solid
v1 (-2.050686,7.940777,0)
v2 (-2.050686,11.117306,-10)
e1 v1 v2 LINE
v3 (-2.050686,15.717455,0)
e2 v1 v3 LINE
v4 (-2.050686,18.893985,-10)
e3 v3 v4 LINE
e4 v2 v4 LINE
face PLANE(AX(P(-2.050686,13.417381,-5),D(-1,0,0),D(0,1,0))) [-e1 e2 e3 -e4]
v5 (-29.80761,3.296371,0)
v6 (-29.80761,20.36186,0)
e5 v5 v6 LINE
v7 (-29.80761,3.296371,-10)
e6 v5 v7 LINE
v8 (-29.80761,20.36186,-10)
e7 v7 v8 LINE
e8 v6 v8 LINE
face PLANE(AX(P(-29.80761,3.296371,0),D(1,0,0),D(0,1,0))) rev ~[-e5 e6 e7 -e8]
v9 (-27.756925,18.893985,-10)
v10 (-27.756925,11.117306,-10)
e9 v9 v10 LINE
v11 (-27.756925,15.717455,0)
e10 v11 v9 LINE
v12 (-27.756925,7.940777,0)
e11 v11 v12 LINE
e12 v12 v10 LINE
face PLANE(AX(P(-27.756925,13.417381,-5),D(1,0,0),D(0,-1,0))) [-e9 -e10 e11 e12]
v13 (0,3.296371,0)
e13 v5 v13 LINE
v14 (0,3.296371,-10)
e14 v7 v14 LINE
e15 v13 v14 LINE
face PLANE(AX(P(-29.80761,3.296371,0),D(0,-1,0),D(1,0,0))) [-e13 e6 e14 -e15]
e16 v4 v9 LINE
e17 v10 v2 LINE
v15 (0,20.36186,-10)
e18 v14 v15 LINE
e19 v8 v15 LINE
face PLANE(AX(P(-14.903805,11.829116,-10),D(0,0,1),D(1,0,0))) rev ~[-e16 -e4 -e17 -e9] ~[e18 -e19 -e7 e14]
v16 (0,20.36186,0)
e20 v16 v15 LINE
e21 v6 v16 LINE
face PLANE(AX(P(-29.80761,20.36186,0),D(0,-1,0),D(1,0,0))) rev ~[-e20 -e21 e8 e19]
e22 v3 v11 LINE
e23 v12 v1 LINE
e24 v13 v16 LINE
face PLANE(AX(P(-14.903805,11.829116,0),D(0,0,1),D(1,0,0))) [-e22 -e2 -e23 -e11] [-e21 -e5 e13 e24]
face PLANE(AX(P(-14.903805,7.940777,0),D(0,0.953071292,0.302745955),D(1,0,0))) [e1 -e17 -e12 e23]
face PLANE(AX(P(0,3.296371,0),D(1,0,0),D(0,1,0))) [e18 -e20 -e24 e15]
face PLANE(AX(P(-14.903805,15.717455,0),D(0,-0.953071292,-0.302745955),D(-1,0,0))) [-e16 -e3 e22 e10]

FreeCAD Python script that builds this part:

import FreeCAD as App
import Part
import Sketcher
Q = App.Units.Quantity

doc = App.newDocument("Part")
body = doc.addObject("PartDesign::Body", "Body")

sketch1 = body.newObject("Sketcher::SketchObject", "Sketch")
sketch1.AttachmentSupport = (doc.getObject("XY_Plane"), [""])
sketch1.MapMode = "FlatFace"
sketch1.addGeometry([
    Part.LineSegment(App.Vector(-30, 20, 0), App.Vector(-30, 3, 0)),
    Part.LineSegment(App.Vector(-30, 3, 0), App.Vector(0, 3, 0)),
    Part.LineSegment(App.Vector(0, 3, 0), App.Vector(0, 20, 0)),
    Part.LineSegment(App.Vector(0, 20, 0), App.Vector(-30, 20, 0)),
], False)
sketch1.addConstraint([
    Sketcher.Constraint("Coincident", 0, 2, 1, 1),
    Sketcher.Constraint("Coincident", 1, 2, 2, 1),
    Sketcher.Constraint("Coincident", 2, 2, 3, 1),
    Sketcher.Constraint("Coincident", 3, 2, 0, 1),
    Sketcher.Constraint("Vertical", 0),
    Sketcher.Constraint("Horizontal", 1),
    Sketcher.Constraint("Vertical", 2),
    Sketcher.Constraint("Horizontal", 3),
    Sketcher.Constraint("PointOnObject", 1, 2, -2),
    Sketcher.Constraint("DistanceX", 1, 1, 1, 2, Q("29.80761 mm")),
    Sketcher.Constraint("DistanceY", 0, 2, 0, 1, Q("17.065489 mm")),
    Sketcher.Constraint("DistanceY", -1, 1, 0, 2, Q("3.296371 mm")),
])
pad1 = body.newObject("PartDesign::Pad", "Pad")
pad1.Profile = sketch1
pad1.Length = 10
pad1.Reversed = True

sketch2 = body.newObject("Sketcher::SketchObject", "Sketch001")
sketch2.AttachmentSupport = (doc.getObject("XY_Plane"), [""])
sketch2.MapMode = "FlatFace"
sketch2.addGeometry([
    Part.LineSegment(App.Vector(-28, 16, 0), App.Vector(-28, 8, 0)),
    Part.LineSegment(App.Vector(-28, 8, 0), App.Vector(-2, 8, 0)),
    Part.LineSegment(App.Vector(-2, 8, 0), App.Vector(-2, 16, 0)),
    Part.LineSegment(App.Vector(-2, 16, 0), App.Vector(-28, 16, 0)),
], False)
sketch2.addConstraint([
    Sketcher.Constraint("Coincident", 0, 2, 1, 1),
    Sketcher.Constraint("Coincident", 1, 2, 2, 1),
    Sketcher.Constraint("Coincident", 2, 2, 3, 1),
    Sketcher.Constraint("Coincident", 3, 2, 0, 1),
    Sketcher.Constraint("Vertical", 0),
    Sketcher.Constraint("Horizontal", 1),
    Sketcher.Constraint("Vertical", 2),
    Sketcher.Constraint("Horizontal", 3),
    Sketcher.Constraint("DistanceX", 1, 1, 1, 2, Q("25.706239 mm")),
    Sketcher.Constraint("DistanceY", 0, 2, 0, 1, Q("7.776679 mm")),
    Sketcher.Constraint("DistanceX", 0, 2, -1, 1, Q("27.756925 mm")),
    Sketcher.Constraint("DistanceY", -1, 1, 0, 2, Q("7.940777 mm")),
])

sketch3 = body.newObject("Sketcher::SketchObject", "Sketch002")
sketch3.Placement = App.Placement(App.Vector(0, 10.744916, 3.413155), App.Rotation(App.Vector(0, 0.302745955, -0.953071292), App.Vector(1.000000001, 0, 0), App.Vector(0, -0.953071292, -0.302745955), "ZXY"))
sketch3.addGeometry(Part.LineSegment(App.Vector(4, 0, 0), App.Vector(14, 0, 0)), False)
sketch3.addConstraint([
    Sketcher.Constraint("Horizontal", 0),
    Sketcher.Constraint("PointOnObject", 0, 1, -1),
    Sketcher.Constraint("DistanceX", 0, 1, 0, 2, Q("10.492395 mm")),
    Sketcher.Constraint("DistanceX", -1, 1, 0, 2, Q("14.073611 mm")),
])
doc.recompute()

subtractivepipe = body.newObject("PartDesign::SubtractivePipe", "SubtractivePipe")
subtractivepipe.Profile = sketch2
subtractivepipe.Spine = (sketch3, ["Edge1"])

doc.recompute()
